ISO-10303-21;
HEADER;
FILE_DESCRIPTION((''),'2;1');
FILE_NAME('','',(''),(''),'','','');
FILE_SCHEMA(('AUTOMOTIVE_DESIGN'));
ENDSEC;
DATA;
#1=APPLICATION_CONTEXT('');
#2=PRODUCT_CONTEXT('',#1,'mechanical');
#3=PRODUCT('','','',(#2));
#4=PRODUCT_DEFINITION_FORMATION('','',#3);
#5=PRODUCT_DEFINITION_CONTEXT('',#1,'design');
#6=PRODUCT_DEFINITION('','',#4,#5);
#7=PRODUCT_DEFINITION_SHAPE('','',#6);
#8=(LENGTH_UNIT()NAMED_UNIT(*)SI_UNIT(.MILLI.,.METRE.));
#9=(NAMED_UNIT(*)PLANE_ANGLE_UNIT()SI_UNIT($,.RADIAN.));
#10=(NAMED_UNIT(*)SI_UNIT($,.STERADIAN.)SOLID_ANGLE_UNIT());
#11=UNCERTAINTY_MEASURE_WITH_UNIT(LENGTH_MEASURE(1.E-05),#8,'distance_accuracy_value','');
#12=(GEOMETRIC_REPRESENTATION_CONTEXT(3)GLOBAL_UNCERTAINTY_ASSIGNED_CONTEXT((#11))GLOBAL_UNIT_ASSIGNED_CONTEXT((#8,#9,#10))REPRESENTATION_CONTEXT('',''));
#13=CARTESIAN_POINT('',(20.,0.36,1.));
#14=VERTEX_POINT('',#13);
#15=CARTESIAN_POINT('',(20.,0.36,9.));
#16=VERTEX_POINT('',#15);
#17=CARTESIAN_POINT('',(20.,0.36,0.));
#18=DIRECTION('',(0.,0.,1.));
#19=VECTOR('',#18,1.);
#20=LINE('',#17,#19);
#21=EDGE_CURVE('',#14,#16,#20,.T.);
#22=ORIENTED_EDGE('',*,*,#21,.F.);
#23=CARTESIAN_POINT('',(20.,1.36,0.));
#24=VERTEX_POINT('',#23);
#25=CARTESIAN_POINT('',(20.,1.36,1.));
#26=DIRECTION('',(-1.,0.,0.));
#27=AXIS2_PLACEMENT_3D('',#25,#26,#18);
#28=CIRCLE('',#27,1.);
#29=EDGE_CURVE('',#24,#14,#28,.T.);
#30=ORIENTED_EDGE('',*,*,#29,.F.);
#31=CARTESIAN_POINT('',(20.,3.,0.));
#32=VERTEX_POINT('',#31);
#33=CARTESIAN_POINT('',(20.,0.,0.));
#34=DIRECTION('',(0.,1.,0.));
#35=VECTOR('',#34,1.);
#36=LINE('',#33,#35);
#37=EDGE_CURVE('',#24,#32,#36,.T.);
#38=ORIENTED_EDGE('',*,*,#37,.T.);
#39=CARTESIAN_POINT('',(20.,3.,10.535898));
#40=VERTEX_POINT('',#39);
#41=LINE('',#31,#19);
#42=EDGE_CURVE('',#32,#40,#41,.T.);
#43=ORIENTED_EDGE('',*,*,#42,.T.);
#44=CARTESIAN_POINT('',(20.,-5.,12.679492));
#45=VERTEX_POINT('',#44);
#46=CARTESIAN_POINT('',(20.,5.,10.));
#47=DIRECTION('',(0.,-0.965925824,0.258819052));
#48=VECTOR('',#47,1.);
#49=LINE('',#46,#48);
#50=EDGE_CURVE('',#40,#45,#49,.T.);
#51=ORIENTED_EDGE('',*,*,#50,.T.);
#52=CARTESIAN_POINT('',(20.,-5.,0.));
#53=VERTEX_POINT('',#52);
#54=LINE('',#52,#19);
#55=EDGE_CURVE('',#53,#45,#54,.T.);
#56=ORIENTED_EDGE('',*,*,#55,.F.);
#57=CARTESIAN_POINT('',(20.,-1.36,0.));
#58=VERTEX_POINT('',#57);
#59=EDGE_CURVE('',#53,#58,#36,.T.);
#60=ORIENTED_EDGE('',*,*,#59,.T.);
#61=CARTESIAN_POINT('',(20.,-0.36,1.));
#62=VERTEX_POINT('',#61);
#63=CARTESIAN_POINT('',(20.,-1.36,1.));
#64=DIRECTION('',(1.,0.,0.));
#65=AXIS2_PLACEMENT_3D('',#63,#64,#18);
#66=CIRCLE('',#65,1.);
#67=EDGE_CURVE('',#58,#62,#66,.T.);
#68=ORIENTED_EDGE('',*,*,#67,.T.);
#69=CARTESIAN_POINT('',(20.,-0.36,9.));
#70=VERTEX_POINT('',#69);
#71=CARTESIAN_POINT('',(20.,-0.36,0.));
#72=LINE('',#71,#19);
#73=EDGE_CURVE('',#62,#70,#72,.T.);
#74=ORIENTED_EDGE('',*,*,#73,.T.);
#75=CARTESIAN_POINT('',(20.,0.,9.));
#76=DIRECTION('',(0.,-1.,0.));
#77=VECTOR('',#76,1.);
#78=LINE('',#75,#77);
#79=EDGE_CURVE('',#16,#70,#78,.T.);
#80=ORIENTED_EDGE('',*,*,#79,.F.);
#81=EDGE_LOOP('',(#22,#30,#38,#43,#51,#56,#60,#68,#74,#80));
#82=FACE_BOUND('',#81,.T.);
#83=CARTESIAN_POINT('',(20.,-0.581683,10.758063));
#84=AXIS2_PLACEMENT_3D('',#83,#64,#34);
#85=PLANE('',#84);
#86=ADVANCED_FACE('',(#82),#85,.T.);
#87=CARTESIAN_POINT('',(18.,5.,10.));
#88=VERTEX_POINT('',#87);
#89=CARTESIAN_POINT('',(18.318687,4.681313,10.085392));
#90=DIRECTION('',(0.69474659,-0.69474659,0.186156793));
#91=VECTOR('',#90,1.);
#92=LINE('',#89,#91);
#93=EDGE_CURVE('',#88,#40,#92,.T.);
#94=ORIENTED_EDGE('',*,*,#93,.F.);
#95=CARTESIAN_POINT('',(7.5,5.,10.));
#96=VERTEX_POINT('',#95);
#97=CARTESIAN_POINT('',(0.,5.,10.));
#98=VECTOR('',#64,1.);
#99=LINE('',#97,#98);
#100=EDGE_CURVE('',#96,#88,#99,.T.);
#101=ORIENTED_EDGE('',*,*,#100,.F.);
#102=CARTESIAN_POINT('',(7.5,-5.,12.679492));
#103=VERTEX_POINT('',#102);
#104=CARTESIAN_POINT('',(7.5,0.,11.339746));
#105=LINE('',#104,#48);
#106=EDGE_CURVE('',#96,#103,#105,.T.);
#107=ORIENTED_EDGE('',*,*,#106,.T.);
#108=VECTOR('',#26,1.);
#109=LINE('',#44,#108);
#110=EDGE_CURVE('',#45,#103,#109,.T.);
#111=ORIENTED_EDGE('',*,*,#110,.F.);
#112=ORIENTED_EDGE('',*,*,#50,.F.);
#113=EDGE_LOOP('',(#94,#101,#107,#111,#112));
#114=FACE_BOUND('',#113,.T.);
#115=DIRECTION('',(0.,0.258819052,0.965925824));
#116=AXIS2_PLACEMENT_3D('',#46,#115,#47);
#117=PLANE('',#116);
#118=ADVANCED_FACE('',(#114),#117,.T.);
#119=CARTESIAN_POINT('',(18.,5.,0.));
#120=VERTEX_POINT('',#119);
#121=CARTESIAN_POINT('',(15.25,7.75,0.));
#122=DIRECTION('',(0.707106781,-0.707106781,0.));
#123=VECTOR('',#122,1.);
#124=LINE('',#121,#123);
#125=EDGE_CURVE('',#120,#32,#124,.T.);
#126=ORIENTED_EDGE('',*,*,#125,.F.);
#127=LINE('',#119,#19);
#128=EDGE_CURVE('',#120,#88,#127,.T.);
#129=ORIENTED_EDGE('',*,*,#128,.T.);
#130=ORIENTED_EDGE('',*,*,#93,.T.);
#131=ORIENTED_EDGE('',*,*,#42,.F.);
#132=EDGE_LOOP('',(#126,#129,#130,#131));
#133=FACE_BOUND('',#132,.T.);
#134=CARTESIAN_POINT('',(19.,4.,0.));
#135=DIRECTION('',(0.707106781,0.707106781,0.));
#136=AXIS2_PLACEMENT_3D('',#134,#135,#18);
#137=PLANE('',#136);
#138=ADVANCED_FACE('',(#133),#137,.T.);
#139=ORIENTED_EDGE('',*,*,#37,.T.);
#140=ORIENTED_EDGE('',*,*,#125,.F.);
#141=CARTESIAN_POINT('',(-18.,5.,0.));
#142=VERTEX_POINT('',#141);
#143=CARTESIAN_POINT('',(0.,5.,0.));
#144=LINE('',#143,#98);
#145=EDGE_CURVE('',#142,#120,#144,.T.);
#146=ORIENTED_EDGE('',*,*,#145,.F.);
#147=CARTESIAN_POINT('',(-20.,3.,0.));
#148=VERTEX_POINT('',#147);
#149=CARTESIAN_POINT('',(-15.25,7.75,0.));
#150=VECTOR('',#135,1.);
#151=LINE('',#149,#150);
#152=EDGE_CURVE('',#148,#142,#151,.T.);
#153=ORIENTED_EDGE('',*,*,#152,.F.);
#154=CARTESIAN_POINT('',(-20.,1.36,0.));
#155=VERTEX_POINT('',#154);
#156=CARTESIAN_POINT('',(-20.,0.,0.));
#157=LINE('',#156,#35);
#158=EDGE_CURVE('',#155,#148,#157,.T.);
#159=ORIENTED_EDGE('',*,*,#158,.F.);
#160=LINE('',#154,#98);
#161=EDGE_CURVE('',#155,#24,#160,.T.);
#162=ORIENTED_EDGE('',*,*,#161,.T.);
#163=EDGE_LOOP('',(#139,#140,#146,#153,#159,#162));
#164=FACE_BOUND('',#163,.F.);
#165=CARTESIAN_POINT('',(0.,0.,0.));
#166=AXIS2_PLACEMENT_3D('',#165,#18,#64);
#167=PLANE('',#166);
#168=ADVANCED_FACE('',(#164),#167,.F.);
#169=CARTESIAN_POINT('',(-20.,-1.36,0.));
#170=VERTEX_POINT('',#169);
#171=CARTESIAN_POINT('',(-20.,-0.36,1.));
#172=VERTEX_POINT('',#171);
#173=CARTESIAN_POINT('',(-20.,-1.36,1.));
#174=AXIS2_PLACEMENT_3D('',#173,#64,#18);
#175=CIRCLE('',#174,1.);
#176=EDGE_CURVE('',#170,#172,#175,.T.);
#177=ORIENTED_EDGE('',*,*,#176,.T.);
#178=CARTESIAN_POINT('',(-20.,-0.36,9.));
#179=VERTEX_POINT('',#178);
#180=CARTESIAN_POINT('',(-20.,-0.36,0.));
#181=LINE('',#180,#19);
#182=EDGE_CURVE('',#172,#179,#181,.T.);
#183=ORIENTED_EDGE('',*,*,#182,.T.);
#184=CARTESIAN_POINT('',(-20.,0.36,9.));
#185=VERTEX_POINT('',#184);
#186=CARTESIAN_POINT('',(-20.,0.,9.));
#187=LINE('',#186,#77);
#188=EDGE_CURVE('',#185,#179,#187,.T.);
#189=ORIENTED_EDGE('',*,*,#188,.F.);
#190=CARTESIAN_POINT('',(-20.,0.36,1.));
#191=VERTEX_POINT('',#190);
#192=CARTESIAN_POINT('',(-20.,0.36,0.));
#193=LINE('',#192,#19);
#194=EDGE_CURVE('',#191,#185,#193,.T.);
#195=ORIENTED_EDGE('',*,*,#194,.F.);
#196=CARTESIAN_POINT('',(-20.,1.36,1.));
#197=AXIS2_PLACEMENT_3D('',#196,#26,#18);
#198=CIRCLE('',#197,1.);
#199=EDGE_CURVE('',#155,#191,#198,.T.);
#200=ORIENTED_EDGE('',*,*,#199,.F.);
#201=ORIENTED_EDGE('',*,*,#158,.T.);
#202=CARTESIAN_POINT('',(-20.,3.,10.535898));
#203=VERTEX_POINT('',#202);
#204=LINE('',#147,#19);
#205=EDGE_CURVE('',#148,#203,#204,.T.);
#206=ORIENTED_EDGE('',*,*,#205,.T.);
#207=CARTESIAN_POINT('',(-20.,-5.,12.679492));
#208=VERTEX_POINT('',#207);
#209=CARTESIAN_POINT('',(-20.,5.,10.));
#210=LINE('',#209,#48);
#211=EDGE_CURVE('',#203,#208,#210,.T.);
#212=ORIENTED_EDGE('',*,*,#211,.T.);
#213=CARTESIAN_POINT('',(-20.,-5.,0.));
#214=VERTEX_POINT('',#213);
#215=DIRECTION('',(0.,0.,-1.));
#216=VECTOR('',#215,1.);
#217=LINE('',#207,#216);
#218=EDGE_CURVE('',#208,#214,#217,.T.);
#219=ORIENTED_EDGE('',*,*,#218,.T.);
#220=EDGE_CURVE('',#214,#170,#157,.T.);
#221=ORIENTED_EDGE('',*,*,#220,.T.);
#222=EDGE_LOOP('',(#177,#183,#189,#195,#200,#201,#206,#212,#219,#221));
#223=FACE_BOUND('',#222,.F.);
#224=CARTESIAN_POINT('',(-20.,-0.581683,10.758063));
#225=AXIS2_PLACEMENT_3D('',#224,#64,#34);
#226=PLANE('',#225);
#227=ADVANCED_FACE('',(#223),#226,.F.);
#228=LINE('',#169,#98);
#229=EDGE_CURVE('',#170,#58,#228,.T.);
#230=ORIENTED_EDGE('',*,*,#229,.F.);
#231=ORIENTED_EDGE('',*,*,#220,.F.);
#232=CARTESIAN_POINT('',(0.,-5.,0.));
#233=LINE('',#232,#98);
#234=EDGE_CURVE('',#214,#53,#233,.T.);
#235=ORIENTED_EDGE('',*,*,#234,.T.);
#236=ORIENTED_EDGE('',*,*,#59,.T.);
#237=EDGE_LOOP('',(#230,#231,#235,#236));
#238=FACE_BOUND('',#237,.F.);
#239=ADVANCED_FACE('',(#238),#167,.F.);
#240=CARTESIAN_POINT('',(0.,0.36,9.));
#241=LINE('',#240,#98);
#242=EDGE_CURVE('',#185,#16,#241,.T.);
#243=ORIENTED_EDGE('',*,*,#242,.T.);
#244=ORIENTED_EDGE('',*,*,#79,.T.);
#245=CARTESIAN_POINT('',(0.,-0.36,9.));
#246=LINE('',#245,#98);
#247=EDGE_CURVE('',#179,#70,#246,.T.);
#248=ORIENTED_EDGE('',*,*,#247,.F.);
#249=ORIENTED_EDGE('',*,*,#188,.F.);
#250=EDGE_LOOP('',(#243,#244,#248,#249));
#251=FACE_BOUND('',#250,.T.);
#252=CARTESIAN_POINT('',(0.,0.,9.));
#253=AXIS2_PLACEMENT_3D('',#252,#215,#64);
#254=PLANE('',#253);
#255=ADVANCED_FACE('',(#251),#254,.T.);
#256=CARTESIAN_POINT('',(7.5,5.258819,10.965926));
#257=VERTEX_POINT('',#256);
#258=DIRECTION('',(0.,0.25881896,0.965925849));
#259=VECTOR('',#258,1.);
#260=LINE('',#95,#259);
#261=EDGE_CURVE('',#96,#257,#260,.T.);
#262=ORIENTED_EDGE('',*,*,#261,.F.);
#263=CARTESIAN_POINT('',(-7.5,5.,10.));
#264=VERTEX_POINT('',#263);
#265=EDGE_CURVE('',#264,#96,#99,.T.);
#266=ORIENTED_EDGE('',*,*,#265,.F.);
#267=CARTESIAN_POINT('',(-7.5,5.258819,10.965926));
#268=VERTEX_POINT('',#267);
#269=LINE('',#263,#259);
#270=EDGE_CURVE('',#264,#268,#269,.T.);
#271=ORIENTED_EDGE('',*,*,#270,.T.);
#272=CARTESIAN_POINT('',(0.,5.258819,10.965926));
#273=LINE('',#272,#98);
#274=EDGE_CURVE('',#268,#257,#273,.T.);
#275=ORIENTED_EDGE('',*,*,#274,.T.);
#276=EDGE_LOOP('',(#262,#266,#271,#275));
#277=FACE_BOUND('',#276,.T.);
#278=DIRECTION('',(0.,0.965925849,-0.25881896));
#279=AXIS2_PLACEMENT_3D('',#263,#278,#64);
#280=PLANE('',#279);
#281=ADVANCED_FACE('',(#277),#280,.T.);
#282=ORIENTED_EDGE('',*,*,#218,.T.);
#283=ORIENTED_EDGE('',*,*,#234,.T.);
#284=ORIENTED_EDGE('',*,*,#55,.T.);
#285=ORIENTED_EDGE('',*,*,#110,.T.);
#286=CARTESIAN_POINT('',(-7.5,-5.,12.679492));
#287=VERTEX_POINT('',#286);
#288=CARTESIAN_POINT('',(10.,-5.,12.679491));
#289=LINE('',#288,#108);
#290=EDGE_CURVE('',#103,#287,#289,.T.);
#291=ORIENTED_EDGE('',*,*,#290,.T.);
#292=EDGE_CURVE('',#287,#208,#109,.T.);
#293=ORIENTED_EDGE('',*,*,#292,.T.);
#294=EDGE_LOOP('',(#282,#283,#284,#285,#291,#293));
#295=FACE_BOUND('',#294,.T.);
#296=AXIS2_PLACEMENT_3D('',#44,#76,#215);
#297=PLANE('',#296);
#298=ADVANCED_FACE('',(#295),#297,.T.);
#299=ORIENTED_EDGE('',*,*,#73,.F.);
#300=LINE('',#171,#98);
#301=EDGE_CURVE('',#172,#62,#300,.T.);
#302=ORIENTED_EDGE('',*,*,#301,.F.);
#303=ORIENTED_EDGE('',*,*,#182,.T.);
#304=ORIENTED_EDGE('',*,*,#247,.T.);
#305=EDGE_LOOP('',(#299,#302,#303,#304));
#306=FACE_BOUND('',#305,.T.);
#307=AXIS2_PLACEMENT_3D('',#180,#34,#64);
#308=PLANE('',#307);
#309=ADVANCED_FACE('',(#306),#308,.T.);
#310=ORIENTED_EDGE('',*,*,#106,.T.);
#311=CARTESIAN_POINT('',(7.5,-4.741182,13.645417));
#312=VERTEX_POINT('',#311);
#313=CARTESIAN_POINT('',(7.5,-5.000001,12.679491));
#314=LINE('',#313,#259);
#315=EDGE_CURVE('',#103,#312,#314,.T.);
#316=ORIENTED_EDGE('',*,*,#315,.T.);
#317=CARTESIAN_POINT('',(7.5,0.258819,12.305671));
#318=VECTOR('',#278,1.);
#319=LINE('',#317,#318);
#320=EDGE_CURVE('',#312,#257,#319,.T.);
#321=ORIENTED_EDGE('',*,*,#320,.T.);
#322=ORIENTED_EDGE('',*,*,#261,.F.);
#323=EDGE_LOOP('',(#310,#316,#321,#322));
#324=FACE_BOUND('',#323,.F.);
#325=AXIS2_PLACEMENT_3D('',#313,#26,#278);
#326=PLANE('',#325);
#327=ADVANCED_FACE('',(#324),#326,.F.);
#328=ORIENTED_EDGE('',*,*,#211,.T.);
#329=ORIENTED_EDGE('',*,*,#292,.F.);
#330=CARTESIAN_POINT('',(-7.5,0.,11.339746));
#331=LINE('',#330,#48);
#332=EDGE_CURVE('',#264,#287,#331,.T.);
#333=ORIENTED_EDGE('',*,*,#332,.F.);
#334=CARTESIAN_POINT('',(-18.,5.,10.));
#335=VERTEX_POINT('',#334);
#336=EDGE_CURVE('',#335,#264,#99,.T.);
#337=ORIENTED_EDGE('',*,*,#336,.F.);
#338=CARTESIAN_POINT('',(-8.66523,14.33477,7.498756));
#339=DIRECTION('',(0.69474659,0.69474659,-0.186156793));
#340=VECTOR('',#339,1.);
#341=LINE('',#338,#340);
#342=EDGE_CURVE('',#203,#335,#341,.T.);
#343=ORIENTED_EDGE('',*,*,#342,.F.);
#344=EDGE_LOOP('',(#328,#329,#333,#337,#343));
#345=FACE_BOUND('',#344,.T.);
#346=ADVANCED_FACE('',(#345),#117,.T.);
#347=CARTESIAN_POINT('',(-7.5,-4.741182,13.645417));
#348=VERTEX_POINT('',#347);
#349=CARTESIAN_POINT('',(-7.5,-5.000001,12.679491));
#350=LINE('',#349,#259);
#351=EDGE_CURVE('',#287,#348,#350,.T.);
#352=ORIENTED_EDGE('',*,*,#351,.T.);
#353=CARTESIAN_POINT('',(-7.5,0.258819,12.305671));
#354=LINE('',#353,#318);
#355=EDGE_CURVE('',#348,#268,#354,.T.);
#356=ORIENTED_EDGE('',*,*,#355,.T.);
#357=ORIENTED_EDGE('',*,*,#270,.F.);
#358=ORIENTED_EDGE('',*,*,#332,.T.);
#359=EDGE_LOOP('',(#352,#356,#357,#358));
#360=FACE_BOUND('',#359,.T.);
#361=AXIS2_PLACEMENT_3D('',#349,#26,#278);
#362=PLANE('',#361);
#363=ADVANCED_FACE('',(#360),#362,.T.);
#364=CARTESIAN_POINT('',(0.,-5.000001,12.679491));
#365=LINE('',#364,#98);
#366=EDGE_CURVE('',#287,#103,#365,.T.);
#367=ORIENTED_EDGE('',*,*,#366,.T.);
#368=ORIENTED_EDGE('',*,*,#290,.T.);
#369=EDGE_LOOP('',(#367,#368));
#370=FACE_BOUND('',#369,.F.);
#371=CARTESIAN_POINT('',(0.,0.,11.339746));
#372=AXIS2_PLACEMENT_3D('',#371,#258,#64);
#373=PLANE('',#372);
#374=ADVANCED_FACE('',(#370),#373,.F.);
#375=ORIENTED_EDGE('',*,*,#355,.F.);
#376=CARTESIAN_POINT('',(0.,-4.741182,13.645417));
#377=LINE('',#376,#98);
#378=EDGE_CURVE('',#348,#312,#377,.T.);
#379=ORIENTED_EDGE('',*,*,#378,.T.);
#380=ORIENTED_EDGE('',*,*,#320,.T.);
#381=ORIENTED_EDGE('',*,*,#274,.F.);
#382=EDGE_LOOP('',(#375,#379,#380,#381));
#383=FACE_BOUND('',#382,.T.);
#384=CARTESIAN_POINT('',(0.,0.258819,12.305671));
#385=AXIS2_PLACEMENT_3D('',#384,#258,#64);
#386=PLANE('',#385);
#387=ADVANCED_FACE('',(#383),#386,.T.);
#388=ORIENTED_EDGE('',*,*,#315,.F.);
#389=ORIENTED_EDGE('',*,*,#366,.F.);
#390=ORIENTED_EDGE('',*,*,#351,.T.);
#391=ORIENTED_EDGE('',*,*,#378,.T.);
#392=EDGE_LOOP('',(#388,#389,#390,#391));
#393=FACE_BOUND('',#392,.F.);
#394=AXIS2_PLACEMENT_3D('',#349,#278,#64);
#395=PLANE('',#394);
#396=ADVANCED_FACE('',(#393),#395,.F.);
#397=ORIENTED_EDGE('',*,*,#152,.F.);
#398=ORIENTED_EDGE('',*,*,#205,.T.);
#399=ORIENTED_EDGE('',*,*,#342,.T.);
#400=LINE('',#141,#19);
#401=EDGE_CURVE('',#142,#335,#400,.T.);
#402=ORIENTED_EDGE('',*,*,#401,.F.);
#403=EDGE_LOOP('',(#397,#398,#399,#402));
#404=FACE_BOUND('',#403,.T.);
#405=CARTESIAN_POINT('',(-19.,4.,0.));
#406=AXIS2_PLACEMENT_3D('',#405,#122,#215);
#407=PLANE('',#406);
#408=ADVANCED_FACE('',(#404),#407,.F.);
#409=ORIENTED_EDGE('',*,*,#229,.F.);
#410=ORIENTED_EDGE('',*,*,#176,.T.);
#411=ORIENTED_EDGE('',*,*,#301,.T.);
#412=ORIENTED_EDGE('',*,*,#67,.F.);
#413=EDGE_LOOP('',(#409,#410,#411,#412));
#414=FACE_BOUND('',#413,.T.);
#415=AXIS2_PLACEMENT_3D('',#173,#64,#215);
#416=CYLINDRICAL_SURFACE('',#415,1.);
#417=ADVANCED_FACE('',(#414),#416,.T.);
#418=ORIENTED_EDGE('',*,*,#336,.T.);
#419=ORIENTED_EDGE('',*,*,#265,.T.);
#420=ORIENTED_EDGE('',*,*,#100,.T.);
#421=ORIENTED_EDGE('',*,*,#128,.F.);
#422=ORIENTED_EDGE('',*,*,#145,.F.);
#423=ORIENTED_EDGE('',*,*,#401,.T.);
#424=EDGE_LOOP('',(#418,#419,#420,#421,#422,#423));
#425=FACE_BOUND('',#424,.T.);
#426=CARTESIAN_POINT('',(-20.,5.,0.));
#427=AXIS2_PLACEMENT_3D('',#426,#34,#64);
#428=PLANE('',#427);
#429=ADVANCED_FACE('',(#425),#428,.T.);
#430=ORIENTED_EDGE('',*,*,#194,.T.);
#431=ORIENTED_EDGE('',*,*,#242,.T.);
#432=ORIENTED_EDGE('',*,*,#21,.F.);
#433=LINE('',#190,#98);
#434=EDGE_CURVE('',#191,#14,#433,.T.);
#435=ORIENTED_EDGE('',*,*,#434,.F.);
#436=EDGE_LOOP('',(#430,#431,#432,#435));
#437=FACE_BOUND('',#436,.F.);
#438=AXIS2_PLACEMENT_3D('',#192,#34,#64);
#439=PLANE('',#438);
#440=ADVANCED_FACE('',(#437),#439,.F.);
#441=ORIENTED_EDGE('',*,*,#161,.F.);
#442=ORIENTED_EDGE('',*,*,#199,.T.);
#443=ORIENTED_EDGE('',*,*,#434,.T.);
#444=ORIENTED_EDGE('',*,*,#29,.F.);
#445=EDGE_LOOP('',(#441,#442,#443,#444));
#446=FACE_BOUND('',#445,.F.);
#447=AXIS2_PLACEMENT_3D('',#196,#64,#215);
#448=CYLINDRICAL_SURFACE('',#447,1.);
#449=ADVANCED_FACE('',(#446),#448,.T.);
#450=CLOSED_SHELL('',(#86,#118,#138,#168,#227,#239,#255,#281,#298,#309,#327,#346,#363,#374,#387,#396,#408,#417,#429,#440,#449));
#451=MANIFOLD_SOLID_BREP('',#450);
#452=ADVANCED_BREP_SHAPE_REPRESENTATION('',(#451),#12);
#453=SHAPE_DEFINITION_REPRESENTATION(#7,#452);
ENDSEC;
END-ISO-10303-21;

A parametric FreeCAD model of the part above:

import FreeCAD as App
import Part
import Sketcher
from FreeCAD import Vector
Q = App.Units.Quantity


def edges_at(feature, points):
    """Names of the edges that pass closest to the given points."""
    edges = feature.Shape.Edges
    near = lambda p: min(range(len(edges)), key=lambda i: edges[i].distToShape(Part.Vertex(*p))[0])
    return sorted({f"Edge{near(p) + 1}" for p in points})


def add_polygon(sketch, points):
    """Adds a closed chain of lines whose ends are joined by coincident constraints."""
    first, n = sketch.GeometryCount, len(points)
    for a, b in zip(points, points[1:] + points[:1]):
        sketch.addGeometry(Part.LineSegment(App.Vector(*a, 0), App.Vector(*b, 0)), False)
    for i in range(n):
        sketch.addConstraint(Sketcher.Constraint("Coincident", first + i, 2, first + (i + 1) % n, 1))

doc = App.newDocument("Part")
body = doc.addObject("PartDesign::Body", "Body")

sketch1 = body.newObject("Sketcher::SketchObject", "Sketch")
sketch1.AttachmentSupport = (doc.getObject("XY_Plane"), [""])
sketch1.MapMode = "FlatFace"
add_polygon(sketch1, [(-20, 5), (-20, -5), (20, -5), (20, 5)])
sketch1.addConstraint([
    Sketcher.Constraint("Vertical", 0),
    Sketcher.Constraint("Horizontal", 1),
    Sketcher.Constraint("Vertical", 2),
    Sketcher.Constraint("Horizontal", 3),
    Sketcher.Constraint("Symmetric", 0, 2, 2, 2, -1, 1),
    Sketcher.Constraint("DistanceX", 1, 1, 1, 2, 40.0),
    Sketcher.Constraint("DistanceY", 0, 2, 0, 1, 10.0),
])
pad1 = body.newObject("PartDesign::Pad", "Pad")
pad1.Profile = sketch1
pad1.Length = 10

sketch2 = body.newObject("Sketcher::SketchObject", "Sketch001")
sketch2.AttachmentSupport = (doc.getObject("YZ_Plane"), [""])
sketch2.MapMode = "FlatFace"
sketch2.AttachmentOffset = App.Placement(Vector(0, 0, 20), App.Rotation())
add_polygon(sketch2, [(-5, 10), (5, 10), (-5, 12.7)])
sketch2.addConstraint([
    Sketcher.Constraint("Horizontal", 0),
    Sketcher.Constraint("Vertical", 2),
    Sketcher.Constraint("DistanceX", 0, 1, 0, 2, 10.0),
    Sketcher.Constraint("Angle", 1, Q("165 deg")),
    Sketcher.Constraint("DistanceX", -1, 1, 0, 2, 5.0),
    Sketcher.Constraint("DistanceY", -1, 1, 0, 2, 10.0),
])
pad2 = body.newObject("PartDesign::Pad", "Pad001")
pad2.Profile = sketch2
pad2.Length = 40
pad2.Reversed = True

sketch3 = body.newObject("Sketcher::SketchObject", "Sketch002")
sketch3.Placement = App.Placement(Vector(0, 2.834936, 10.580127), App.Rotation(Vector(1, 0, 0), Vector(0, 0.965925849, -0.25881896), Vector(0, 0.25881896, 0.965925849), "ZXY"))
add_polygon(sketch3, [(-8, 2), (-8, -8), (8, -8), (8, 2)])
sketch3.addConstraint([
    Sketcher.Constraint("Vertical", 0),
    Sketcher.Constraint("Horizontal", 1),
    Sketcher.Constraint("Vertical", 2),
    Sketcher.Constraint("Horizontal", 3),
    Sketcher.Constraint("DistanceX", 1, 1, 1, 2, 15.0),
    Sketcher.Constraint("DistanceX", 0, 2, -1, 1, 7.5),
    Sketcher.Constraint("DistanceY", 0, 2, 0, 1, 10.352762),
    Sketcher.Constraint("DistanceY", -1, 1, 2, 2, 2.241439),
])
pad3 = body.newObject("PartDesign::Pad", "Pad002")
pad3.Profile = sketch3
pad3.Length = 1

sketch4 = body.newObject("Sketcher::SketchObject", "Sketch003")
sketch4.AttachmentSupport = (doc.getObject("XY_Plane"), [""])
sketch4.MapMode = "FlatFace"
add_polygon(sketch4, [(-20, -0.4), (-20, 0.4), (20, 0.4), (20, -0.4)])
sketch4.addConstraint([
    Sketcher.Constraint("Vertical", 0),
    Sketcher.Constraint("Horizontal", 1),
    Sketcher.Constraint("Vertical", 2),
    Sketcher.Constraint("Horizontal", 3),
    Sketcher.Constraint("Symmetric", 0, 2, 2, 2, -1, 1),
    Sketcher.Constraint("DistanceX", 1, 1, 1, 2, 40.0),
    Sketcher.Constraint("DistanceY", 0, 1, 0, 2, 0.72),
])
pocket1 = body.newObject("PartDesign::Pocket", "Pocket")
pocket1.Profile = sketch4
pocket1.Length = 9
pocket1.Reversed = True
doc.recompute()

fillet = body.newObject("PartDesign::Fillet", "Fillet")
fillet.Base = (pocket1, edges_at(pocket1, [(0, -0.36, 0), (0, 0.36, 0)]))
fillet.Radius = 1
doc.recompute()

chamfer = body.newObject("PartDesign::Chamfer", "Chamfer")
chamfer.Base = (fillet, edges_at(fillet, [(20, 5, 5), (-20, 5, 5)]))
chamfer.Size = 2

doc.recompute()
